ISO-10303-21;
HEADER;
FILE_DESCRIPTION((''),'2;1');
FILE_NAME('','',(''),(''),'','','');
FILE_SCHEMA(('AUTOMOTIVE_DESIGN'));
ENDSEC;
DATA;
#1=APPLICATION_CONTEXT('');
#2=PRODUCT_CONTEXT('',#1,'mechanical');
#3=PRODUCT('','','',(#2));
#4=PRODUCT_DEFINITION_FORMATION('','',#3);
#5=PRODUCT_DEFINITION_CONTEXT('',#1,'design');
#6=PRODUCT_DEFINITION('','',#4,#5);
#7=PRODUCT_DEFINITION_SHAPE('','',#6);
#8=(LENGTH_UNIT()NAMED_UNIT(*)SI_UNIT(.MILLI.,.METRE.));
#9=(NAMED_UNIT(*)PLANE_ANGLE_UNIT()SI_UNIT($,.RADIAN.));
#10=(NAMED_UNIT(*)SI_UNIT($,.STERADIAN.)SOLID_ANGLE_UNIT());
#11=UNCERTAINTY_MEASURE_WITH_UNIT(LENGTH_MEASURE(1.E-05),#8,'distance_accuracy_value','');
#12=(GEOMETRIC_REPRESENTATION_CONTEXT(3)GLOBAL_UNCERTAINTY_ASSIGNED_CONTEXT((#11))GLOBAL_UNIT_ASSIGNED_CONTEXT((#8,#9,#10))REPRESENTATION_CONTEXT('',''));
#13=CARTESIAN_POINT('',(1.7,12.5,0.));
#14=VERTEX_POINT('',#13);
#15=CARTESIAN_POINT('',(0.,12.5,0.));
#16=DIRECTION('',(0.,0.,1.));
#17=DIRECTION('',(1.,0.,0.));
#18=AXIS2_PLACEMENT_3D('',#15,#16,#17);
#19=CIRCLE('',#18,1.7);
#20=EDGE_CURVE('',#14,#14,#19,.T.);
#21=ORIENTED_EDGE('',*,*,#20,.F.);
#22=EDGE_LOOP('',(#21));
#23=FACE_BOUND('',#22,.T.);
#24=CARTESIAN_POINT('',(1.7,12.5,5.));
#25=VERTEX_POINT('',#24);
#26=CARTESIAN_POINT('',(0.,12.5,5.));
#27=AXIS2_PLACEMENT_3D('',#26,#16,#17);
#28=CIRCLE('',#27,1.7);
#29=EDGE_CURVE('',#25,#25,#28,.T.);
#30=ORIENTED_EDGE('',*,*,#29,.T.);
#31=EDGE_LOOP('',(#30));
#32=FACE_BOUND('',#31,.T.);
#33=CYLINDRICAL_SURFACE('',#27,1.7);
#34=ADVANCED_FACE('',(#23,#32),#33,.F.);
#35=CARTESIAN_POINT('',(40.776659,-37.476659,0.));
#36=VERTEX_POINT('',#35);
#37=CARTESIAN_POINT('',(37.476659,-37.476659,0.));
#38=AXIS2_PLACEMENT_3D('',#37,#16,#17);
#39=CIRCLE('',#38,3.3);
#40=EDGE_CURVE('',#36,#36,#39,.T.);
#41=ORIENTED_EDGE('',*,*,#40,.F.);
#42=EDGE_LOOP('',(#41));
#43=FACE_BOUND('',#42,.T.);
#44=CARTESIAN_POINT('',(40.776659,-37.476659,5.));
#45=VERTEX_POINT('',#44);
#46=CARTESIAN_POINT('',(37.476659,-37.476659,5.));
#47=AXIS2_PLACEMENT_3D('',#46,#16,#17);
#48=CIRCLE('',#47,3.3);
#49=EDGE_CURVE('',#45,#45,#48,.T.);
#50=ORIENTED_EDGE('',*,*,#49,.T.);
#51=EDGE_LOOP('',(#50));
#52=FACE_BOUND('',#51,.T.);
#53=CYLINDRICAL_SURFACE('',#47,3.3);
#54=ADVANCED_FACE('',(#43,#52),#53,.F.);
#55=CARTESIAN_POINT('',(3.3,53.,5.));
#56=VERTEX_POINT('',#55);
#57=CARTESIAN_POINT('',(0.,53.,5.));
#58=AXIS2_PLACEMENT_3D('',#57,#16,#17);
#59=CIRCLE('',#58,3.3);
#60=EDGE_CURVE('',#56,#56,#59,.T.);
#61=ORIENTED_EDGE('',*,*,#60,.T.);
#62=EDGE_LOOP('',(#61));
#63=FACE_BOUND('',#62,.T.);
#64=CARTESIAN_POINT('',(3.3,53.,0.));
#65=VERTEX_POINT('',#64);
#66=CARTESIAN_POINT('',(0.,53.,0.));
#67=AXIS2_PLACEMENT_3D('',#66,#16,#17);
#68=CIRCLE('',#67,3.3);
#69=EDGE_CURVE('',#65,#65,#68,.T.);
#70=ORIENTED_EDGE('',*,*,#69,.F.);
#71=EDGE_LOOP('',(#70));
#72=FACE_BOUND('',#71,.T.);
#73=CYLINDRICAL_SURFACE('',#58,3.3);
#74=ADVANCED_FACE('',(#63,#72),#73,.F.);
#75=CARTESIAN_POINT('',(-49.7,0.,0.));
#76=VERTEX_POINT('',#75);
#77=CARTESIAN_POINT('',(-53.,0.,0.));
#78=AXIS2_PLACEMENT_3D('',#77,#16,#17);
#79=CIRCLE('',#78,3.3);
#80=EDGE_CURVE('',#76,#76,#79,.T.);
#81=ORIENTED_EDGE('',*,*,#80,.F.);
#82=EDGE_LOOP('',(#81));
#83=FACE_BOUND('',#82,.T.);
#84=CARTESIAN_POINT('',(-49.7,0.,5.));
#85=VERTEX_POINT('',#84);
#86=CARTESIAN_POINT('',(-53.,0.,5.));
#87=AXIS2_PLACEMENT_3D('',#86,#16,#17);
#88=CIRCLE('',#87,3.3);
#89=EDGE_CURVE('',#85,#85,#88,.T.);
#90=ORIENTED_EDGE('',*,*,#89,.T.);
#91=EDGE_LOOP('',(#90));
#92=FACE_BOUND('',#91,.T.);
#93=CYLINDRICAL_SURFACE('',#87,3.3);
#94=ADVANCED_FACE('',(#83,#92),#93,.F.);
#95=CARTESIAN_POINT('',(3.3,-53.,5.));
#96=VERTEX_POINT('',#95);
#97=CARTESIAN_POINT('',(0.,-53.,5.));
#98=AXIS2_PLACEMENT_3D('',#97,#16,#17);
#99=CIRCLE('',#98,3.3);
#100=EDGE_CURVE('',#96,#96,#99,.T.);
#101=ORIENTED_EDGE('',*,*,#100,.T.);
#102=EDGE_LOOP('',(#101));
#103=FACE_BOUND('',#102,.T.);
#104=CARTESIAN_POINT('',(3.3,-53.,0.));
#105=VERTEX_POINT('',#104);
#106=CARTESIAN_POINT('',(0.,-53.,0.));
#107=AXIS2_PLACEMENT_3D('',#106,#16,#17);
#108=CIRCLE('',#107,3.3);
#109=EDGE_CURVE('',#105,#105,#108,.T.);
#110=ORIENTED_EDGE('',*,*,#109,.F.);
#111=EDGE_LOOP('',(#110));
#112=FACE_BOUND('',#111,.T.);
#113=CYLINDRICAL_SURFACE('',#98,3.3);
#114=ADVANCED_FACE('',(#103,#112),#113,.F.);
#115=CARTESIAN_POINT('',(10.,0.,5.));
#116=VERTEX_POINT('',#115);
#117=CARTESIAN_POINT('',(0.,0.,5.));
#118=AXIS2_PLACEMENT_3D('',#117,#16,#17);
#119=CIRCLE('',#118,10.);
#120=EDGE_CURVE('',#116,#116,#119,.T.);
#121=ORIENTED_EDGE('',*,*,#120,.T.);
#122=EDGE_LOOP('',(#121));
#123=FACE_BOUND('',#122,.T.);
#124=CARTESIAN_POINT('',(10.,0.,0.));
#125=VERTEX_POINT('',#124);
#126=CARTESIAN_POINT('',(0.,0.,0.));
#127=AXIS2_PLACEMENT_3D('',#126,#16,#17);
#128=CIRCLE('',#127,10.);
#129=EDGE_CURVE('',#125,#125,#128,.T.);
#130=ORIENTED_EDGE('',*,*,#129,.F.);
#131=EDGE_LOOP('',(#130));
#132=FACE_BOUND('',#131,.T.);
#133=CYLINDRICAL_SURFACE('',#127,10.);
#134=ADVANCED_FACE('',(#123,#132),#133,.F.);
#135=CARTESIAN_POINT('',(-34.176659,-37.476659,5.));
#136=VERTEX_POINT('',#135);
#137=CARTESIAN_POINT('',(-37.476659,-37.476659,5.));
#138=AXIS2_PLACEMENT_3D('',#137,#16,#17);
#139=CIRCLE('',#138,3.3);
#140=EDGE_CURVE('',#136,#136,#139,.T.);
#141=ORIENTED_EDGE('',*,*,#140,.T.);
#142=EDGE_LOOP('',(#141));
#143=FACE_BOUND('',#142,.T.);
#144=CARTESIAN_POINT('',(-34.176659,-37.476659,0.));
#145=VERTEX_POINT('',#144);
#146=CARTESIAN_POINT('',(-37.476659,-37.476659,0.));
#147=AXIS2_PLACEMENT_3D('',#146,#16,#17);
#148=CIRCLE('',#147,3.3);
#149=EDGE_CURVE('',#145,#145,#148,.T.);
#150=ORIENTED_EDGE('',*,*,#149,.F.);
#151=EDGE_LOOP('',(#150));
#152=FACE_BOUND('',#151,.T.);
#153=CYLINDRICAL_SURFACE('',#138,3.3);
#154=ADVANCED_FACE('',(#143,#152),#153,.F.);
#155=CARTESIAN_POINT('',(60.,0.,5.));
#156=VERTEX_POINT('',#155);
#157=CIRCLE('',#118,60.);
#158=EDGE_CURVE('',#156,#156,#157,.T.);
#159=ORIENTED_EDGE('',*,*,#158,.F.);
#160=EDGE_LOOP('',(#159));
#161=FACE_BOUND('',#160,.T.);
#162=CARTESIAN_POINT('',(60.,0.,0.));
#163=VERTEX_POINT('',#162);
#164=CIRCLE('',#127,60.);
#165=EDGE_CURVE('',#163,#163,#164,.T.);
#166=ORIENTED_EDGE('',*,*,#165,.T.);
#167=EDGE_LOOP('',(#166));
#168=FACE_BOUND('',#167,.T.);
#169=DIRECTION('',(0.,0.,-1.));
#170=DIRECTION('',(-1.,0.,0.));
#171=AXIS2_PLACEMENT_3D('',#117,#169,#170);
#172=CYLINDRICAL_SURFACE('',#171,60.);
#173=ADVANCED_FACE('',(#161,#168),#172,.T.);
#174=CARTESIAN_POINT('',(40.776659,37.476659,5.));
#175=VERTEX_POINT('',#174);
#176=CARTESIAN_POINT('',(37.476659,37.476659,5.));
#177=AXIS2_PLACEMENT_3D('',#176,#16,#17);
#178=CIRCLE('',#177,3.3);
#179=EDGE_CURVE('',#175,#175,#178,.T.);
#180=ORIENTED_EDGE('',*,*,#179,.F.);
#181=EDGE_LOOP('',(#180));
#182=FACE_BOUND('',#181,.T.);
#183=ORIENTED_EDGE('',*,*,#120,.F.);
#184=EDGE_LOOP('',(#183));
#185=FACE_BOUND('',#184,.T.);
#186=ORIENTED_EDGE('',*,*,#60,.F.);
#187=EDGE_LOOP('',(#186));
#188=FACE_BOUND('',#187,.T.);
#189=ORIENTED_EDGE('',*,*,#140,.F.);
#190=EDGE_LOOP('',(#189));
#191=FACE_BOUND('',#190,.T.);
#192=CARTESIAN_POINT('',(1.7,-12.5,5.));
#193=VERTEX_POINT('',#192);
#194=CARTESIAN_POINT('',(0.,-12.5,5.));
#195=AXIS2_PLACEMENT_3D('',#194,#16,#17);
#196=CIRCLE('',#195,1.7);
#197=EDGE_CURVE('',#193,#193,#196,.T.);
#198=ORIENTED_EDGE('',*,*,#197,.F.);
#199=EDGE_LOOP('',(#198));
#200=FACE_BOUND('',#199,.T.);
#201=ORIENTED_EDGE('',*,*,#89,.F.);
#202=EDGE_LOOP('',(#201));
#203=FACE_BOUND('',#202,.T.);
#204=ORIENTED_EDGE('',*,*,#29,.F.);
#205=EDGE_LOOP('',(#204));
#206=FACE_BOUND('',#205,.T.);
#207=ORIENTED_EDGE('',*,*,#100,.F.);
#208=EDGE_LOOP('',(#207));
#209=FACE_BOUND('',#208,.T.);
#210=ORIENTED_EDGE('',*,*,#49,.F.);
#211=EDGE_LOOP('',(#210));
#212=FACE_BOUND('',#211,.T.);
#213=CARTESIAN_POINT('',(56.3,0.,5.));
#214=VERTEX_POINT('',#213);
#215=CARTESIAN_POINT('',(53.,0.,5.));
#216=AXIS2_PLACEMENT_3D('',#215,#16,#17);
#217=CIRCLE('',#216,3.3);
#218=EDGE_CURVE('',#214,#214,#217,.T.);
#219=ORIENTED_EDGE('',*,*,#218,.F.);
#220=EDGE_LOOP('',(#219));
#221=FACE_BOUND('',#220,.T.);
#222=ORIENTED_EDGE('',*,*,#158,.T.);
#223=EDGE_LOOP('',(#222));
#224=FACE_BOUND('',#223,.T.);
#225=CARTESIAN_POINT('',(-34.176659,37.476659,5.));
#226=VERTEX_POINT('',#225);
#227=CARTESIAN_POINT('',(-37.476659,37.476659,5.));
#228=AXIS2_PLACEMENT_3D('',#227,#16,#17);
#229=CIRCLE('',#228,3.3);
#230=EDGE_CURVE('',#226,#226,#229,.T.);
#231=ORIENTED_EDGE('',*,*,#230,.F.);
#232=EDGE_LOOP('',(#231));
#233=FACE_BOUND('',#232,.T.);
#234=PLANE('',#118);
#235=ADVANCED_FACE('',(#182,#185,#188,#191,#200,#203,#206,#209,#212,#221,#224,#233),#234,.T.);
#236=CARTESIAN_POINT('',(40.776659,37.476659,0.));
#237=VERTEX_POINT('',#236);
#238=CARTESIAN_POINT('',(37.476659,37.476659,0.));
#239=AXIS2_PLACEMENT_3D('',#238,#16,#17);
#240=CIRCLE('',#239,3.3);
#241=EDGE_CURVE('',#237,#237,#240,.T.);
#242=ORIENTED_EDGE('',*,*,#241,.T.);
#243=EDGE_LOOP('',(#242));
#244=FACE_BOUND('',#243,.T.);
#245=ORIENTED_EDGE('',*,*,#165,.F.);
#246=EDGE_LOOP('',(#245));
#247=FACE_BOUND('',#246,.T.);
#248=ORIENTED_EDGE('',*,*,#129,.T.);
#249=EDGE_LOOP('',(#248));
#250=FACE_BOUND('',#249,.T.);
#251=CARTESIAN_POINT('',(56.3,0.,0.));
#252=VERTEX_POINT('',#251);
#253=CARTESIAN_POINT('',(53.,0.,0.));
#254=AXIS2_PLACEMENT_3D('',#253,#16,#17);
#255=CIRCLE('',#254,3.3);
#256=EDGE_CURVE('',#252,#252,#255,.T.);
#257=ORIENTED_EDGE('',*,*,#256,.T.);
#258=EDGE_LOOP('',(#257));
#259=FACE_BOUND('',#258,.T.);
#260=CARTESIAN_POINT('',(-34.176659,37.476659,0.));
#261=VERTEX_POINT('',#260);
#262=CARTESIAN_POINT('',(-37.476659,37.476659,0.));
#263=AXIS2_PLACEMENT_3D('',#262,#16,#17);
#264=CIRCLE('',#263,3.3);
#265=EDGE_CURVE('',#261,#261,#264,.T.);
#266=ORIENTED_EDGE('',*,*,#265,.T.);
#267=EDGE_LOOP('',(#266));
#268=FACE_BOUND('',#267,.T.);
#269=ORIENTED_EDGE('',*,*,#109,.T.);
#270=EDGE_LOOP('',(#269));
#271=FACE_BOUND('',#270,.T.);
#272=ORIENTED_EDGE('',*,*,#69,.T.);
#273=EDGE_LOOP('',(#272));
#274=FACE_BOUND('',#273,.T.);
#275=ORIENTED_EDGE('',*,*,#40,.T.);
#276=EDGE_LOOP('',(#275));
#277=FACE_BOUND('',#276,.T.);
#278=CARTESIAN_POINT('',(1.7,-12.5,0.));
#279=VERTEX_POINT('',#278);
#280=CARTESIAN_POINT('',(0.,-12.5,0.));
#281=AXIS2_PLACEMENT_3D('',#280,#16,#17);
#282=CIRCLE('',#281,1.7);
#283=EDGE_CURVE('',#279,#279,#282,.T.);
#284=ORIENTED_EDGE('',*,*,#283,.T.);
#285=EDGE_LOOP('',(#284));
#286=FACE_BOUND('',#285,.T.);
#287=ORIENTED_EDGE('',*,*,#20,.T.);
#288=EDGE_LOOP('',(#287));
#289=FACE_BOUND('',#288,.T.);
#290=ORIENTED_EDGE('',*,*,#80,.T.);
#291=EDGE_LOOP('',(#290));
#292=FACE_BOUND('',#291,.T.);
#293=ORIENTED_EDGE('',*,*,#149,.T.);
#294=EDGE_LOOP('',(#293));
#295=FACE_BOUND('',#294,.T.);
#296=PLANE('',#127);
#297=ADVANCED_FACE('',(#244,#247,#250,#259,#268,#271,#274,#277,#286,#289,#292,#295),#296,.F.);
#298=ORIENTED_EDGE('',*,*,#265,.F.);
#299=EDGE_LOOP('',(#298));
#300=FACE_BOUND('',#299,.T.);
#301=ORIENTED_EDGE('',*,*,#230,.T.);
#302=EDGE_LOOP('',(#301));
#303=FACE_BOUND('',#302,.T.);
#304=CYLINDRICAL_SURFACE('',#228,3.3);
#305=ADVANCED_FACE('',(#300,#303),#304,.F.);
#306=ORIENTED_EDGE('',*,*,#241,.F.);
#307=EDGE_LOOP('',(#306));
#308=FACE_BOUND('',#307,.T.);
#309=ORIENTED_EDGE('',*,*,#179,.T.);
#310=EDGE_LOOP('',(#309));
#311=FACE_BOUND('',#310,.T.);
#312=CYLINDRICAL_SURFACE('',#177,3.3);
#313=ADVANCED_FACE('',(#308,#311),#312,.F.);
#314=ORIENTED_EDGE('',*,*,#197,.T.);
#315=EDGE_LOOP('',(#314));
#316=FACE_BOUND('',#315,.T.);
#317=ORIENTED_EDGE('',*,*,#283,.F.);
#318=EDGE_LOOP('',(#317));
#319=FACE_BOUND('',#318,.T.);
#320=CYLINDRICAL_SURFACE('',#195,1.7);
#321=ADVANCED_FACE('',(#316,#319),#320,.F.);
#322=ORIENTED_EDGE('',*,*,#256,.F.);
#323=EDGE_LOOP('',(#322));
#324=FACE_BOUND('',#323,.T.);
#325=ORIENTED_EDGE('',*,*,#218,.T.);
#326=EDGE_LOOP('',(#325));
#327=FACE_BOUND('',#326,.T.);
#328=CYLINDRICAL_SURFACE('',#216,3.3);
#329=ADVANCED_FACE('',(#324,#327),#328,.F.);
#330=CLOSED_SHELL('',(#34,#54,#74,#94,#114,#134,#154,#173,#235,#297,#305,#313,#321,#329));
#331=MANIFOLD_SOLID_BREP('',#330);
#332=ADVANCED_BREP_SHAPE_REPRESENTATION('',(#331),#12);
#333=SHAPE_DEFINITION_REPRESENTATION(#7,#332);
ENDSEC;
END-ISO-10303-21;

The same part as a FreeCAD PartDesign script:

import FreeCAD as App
import Part
import Sketcher

V = App.Vector

doc = App.newDocument("Part")
params = doc.addObject("Spreadsheet::Sheet", "Params")
for row, (alias, value) in enumerate([
    ("sketch1_diameter", "120 mm"),
    ("pad1_length", "5 mm"),
    ("sketch2_diameter", "20 mm"),
    ("sketch3_diameter", "3.4 mm"),
    ("hole_diameter", "3.4 mm"),
    ("sketch4_diameter", "6.6 mm"),
    ("hole2_diameter", "6.6 mm"),
], start=1):
    params.set(f"A{row}", alias)
    params.set(f"B{row}", "=" + value)
    params.setAlias(f"B{row}", alias)

body = doc.addObject("PartDesign::Body", "Body")

sketch1 = doc.addObject("Sketcher::SketchObject", "Sketch")
body.addObject(sketch1)
sketch1.AttachmentSupport = (doc.XY_Plane, [""])
sketch1.MapMode = "FlatFace"
sketch1.addGeometry(Part.Circle(V(0, 0, 0), V(0, 0, 1), 60), False)
sketch1.addConstraint(Sketcher.Constraint("Coincident", 0, 3, -1, 1))
sketch1.addConstraint(Sketcher.Constraint("Diameter", 0, 120.0))
sketch1.setExpression("Constraints[1]", "Params.sketch1_diameter")
pad1 = doc.addObject("PartDesign::Pad", "Pad")
body.addObject(pad1)
pad1.Profile = sketch1
pad1.setExpression("Length", "Params.pad1_length")

sketch2 = doc.addObject("Sketcher::SketchObject", "Sketch001")
body.addObject(sketch2)
sketch2.AttachmentSupport = (doc.XY_Plane, [""])
sketch2.MapMode = "FlatFace"
sketch2.AttachmentOffset = App.Placement(V(0, 0, 5), App.Rotation())
sketch2.addGeometry(Part.Circle(V(0, 0, 0), V(0, 0, 1), 10), False)
sketch2.addConstraint(Sketcher.Constraint("Coincident", 0, 3, -1, 1))
sketch2.addConstraint(Sketcher.Constraint("Diameter", 0, 20.0))
sketch2.setExpression("Constraints[1]", "Params.sketch2_diameter")
pocket1 = doc.addObject("PartDesign::Pocket", "Pocket")
body.addObject(pocket1)
pocket1.Profile = sketch2
pocket1.Type = "ThroughAll"
pocket1.Midplane = True

sketch3 = doc.addObject("Sketcher::SketchObject", "Sketch002")
body.addObject(sketch3)
sketch3.AttachmentSupport = (doc.XY_Plane, [""])
sketch3.MapMode = "FlatFace"
sketch3.AttachmentOffset = App.Placement(V(0, 0, 5), App.Rotation())
sketch3.addGeometry(Part.Circle(V(0, 12.5, 0), V(0, 0, 1), 1.7), False)
sketch3.addGeometry(Part.Circle(V(0, -12.5, 0), V(0, 0, 1), 1.7), False)
sketch3.addConstraint(Sketcher.Constraint("Equal", 0, 1))
sketch3.addConstraint(Sketcher.Constraint("Symmetric", 0, 3, 1, 3, -1, 1))
sketch3.addConstraint(Sketcher.Constraint("PointOnObject", 0, 3, -2))
sketch3.addConstraint(Sketcher.Constraint("Diameter", 0, 3.4))
sketch3.addConstraint(Sketcher.Constraint("DistanceY", 1, 3, 0, 3, 25.0))
sketch3.setExpression("Constraints[3]", "Params.sketch3_diameter")
doc.recompute()
hole = doc.addObject("PartDesign::Hole", "Hole")
body.addObject(hole)
hole.Profile = sketch3
hole.ThreadType = "None"
hole.setExpression("Diameter", "Params.hole_diameter")
hole.DepthType = "ThroughAll"

sketch4 = doc.addObject("Sketcher::SketchObject", "Sketch003")
body.addObject(sketch4)
sketch4.AttachmentSupport = (doc.XY_Plane, [""])
sketch4.MapMode = "FlatFace"
sketch4.AttachmentOffset = App.Placement(V(0, 0, 5), App.Rotation())
sketch4.addGeometry(Part.Circle(V(-37.476659, 37.476659, 0), V(0, 0, 1), 3.3), False)
sketch4.addGeometry(Part.Circle(V(0, 53, 0), V(0, 0, 1), 3.3), False)
sketch4.addGeometry(Part.Circle(V(37.476659, 37.476659, 0), V(0, 0, 1), 3.3), False)
sketch4.addGeometry(Part.Circle(V(53, 0, 0), V(0, 0, 1), 3.3), False)
sketch4.addGeometry(Part.Circle(V(37.476659, -37.476659, 0), V(0, 0, 1), 3.3), False)
sketch4.addGeometry(Part.Circle(V(0, -53, 0), V(0, 0, 1), 3.3), False)
sketch4.addGeometry(Part.Circle(V(-37.476659, -37.476659, 0), V(0, 0, 1), 3.3), False)
sketch4.addGeometry(Part.Circle(V(-53, 0, 0), V(0, 0, 1), 3.3), False)
sketch4.addConstraint(Sketcher.Constraint("Equal", 0, 1))
sketch4.addConstraint(Sketcher.Constraint("Equal", 1, 2))
sketch4.addConstraint(Sketcher.Constraint("Equal", 2, 3))
sketch4.addConstraint(Sketcher.Constraint("Equal", 3, 4))
sketch4.addConstraint(Sketcher.Constraint("Equal", 4, 5))
sketch4.addConstraint(Sketcher.Constraint("Equal", 5, 6))
sketch4.addConstraint(Sketcher.Constraint("Equal", 6, 7))
sketch4.addConstraint(Sketcher.Constraint("Symmetric", 0, 3, 4, 3, -1, 1))
sketch4.addConstraint(Sketcher.Constraint("Symmetric", 1, 3, 5, 3, -1, 1))
sketch4.addConstraint(Sketcher.Constraint("Symmetric", 2, 3, 6, 3, -1, 1))
sketch4.addConstraint(Sketcher.Constraint("Symmetric", 3, 3, 7, 3, -1, 1))
sketch4.addConstraint(Sketcher.Constraint("Symmetric", 0, 3, 2, 3, -2))
sketch4.addConstraint(Sketcher.Constraint("PointOnObject", 1, 3, -2))
sketch4.addConstraint(Sketcher.Constraint("PointOnObject", 3, 3, -1))
sketch4.addConstraint(Sketcher.Constraint("Diameter", 0, 6.6))
sketch4.addConstraint(Sketcher.Constraint("DistanceY", -1, 1, 1, 3, 53.0))
sketch4.addConstraint(Sketcher.Constraint("DistanceX", -1, 1, 3, 3, 53.0))
sketch4.addConstraint(Sketcher.Constraint("DistanceX", 0, 3, -1, 1, 37.476659))
sketch4.addConstraint(Sketcher.Constraint("DistanceY", -1, 1, 0, 3, 37.476659))
sketch4.setExpression("Constraints[14]", "Params.sketch4_diameter")
doc.recompute()
hole2 = doc.addObject("PartDesign::Hole", "Hole001")
body.addObject(hole2)
hole2.Profile = sketch4
hole2.ThreadType = "None"
hole2.setExpression("Diameter", "Params.hole2_diameter")
hole2.DepthType = "ThroughAll"

doc.recompute()
